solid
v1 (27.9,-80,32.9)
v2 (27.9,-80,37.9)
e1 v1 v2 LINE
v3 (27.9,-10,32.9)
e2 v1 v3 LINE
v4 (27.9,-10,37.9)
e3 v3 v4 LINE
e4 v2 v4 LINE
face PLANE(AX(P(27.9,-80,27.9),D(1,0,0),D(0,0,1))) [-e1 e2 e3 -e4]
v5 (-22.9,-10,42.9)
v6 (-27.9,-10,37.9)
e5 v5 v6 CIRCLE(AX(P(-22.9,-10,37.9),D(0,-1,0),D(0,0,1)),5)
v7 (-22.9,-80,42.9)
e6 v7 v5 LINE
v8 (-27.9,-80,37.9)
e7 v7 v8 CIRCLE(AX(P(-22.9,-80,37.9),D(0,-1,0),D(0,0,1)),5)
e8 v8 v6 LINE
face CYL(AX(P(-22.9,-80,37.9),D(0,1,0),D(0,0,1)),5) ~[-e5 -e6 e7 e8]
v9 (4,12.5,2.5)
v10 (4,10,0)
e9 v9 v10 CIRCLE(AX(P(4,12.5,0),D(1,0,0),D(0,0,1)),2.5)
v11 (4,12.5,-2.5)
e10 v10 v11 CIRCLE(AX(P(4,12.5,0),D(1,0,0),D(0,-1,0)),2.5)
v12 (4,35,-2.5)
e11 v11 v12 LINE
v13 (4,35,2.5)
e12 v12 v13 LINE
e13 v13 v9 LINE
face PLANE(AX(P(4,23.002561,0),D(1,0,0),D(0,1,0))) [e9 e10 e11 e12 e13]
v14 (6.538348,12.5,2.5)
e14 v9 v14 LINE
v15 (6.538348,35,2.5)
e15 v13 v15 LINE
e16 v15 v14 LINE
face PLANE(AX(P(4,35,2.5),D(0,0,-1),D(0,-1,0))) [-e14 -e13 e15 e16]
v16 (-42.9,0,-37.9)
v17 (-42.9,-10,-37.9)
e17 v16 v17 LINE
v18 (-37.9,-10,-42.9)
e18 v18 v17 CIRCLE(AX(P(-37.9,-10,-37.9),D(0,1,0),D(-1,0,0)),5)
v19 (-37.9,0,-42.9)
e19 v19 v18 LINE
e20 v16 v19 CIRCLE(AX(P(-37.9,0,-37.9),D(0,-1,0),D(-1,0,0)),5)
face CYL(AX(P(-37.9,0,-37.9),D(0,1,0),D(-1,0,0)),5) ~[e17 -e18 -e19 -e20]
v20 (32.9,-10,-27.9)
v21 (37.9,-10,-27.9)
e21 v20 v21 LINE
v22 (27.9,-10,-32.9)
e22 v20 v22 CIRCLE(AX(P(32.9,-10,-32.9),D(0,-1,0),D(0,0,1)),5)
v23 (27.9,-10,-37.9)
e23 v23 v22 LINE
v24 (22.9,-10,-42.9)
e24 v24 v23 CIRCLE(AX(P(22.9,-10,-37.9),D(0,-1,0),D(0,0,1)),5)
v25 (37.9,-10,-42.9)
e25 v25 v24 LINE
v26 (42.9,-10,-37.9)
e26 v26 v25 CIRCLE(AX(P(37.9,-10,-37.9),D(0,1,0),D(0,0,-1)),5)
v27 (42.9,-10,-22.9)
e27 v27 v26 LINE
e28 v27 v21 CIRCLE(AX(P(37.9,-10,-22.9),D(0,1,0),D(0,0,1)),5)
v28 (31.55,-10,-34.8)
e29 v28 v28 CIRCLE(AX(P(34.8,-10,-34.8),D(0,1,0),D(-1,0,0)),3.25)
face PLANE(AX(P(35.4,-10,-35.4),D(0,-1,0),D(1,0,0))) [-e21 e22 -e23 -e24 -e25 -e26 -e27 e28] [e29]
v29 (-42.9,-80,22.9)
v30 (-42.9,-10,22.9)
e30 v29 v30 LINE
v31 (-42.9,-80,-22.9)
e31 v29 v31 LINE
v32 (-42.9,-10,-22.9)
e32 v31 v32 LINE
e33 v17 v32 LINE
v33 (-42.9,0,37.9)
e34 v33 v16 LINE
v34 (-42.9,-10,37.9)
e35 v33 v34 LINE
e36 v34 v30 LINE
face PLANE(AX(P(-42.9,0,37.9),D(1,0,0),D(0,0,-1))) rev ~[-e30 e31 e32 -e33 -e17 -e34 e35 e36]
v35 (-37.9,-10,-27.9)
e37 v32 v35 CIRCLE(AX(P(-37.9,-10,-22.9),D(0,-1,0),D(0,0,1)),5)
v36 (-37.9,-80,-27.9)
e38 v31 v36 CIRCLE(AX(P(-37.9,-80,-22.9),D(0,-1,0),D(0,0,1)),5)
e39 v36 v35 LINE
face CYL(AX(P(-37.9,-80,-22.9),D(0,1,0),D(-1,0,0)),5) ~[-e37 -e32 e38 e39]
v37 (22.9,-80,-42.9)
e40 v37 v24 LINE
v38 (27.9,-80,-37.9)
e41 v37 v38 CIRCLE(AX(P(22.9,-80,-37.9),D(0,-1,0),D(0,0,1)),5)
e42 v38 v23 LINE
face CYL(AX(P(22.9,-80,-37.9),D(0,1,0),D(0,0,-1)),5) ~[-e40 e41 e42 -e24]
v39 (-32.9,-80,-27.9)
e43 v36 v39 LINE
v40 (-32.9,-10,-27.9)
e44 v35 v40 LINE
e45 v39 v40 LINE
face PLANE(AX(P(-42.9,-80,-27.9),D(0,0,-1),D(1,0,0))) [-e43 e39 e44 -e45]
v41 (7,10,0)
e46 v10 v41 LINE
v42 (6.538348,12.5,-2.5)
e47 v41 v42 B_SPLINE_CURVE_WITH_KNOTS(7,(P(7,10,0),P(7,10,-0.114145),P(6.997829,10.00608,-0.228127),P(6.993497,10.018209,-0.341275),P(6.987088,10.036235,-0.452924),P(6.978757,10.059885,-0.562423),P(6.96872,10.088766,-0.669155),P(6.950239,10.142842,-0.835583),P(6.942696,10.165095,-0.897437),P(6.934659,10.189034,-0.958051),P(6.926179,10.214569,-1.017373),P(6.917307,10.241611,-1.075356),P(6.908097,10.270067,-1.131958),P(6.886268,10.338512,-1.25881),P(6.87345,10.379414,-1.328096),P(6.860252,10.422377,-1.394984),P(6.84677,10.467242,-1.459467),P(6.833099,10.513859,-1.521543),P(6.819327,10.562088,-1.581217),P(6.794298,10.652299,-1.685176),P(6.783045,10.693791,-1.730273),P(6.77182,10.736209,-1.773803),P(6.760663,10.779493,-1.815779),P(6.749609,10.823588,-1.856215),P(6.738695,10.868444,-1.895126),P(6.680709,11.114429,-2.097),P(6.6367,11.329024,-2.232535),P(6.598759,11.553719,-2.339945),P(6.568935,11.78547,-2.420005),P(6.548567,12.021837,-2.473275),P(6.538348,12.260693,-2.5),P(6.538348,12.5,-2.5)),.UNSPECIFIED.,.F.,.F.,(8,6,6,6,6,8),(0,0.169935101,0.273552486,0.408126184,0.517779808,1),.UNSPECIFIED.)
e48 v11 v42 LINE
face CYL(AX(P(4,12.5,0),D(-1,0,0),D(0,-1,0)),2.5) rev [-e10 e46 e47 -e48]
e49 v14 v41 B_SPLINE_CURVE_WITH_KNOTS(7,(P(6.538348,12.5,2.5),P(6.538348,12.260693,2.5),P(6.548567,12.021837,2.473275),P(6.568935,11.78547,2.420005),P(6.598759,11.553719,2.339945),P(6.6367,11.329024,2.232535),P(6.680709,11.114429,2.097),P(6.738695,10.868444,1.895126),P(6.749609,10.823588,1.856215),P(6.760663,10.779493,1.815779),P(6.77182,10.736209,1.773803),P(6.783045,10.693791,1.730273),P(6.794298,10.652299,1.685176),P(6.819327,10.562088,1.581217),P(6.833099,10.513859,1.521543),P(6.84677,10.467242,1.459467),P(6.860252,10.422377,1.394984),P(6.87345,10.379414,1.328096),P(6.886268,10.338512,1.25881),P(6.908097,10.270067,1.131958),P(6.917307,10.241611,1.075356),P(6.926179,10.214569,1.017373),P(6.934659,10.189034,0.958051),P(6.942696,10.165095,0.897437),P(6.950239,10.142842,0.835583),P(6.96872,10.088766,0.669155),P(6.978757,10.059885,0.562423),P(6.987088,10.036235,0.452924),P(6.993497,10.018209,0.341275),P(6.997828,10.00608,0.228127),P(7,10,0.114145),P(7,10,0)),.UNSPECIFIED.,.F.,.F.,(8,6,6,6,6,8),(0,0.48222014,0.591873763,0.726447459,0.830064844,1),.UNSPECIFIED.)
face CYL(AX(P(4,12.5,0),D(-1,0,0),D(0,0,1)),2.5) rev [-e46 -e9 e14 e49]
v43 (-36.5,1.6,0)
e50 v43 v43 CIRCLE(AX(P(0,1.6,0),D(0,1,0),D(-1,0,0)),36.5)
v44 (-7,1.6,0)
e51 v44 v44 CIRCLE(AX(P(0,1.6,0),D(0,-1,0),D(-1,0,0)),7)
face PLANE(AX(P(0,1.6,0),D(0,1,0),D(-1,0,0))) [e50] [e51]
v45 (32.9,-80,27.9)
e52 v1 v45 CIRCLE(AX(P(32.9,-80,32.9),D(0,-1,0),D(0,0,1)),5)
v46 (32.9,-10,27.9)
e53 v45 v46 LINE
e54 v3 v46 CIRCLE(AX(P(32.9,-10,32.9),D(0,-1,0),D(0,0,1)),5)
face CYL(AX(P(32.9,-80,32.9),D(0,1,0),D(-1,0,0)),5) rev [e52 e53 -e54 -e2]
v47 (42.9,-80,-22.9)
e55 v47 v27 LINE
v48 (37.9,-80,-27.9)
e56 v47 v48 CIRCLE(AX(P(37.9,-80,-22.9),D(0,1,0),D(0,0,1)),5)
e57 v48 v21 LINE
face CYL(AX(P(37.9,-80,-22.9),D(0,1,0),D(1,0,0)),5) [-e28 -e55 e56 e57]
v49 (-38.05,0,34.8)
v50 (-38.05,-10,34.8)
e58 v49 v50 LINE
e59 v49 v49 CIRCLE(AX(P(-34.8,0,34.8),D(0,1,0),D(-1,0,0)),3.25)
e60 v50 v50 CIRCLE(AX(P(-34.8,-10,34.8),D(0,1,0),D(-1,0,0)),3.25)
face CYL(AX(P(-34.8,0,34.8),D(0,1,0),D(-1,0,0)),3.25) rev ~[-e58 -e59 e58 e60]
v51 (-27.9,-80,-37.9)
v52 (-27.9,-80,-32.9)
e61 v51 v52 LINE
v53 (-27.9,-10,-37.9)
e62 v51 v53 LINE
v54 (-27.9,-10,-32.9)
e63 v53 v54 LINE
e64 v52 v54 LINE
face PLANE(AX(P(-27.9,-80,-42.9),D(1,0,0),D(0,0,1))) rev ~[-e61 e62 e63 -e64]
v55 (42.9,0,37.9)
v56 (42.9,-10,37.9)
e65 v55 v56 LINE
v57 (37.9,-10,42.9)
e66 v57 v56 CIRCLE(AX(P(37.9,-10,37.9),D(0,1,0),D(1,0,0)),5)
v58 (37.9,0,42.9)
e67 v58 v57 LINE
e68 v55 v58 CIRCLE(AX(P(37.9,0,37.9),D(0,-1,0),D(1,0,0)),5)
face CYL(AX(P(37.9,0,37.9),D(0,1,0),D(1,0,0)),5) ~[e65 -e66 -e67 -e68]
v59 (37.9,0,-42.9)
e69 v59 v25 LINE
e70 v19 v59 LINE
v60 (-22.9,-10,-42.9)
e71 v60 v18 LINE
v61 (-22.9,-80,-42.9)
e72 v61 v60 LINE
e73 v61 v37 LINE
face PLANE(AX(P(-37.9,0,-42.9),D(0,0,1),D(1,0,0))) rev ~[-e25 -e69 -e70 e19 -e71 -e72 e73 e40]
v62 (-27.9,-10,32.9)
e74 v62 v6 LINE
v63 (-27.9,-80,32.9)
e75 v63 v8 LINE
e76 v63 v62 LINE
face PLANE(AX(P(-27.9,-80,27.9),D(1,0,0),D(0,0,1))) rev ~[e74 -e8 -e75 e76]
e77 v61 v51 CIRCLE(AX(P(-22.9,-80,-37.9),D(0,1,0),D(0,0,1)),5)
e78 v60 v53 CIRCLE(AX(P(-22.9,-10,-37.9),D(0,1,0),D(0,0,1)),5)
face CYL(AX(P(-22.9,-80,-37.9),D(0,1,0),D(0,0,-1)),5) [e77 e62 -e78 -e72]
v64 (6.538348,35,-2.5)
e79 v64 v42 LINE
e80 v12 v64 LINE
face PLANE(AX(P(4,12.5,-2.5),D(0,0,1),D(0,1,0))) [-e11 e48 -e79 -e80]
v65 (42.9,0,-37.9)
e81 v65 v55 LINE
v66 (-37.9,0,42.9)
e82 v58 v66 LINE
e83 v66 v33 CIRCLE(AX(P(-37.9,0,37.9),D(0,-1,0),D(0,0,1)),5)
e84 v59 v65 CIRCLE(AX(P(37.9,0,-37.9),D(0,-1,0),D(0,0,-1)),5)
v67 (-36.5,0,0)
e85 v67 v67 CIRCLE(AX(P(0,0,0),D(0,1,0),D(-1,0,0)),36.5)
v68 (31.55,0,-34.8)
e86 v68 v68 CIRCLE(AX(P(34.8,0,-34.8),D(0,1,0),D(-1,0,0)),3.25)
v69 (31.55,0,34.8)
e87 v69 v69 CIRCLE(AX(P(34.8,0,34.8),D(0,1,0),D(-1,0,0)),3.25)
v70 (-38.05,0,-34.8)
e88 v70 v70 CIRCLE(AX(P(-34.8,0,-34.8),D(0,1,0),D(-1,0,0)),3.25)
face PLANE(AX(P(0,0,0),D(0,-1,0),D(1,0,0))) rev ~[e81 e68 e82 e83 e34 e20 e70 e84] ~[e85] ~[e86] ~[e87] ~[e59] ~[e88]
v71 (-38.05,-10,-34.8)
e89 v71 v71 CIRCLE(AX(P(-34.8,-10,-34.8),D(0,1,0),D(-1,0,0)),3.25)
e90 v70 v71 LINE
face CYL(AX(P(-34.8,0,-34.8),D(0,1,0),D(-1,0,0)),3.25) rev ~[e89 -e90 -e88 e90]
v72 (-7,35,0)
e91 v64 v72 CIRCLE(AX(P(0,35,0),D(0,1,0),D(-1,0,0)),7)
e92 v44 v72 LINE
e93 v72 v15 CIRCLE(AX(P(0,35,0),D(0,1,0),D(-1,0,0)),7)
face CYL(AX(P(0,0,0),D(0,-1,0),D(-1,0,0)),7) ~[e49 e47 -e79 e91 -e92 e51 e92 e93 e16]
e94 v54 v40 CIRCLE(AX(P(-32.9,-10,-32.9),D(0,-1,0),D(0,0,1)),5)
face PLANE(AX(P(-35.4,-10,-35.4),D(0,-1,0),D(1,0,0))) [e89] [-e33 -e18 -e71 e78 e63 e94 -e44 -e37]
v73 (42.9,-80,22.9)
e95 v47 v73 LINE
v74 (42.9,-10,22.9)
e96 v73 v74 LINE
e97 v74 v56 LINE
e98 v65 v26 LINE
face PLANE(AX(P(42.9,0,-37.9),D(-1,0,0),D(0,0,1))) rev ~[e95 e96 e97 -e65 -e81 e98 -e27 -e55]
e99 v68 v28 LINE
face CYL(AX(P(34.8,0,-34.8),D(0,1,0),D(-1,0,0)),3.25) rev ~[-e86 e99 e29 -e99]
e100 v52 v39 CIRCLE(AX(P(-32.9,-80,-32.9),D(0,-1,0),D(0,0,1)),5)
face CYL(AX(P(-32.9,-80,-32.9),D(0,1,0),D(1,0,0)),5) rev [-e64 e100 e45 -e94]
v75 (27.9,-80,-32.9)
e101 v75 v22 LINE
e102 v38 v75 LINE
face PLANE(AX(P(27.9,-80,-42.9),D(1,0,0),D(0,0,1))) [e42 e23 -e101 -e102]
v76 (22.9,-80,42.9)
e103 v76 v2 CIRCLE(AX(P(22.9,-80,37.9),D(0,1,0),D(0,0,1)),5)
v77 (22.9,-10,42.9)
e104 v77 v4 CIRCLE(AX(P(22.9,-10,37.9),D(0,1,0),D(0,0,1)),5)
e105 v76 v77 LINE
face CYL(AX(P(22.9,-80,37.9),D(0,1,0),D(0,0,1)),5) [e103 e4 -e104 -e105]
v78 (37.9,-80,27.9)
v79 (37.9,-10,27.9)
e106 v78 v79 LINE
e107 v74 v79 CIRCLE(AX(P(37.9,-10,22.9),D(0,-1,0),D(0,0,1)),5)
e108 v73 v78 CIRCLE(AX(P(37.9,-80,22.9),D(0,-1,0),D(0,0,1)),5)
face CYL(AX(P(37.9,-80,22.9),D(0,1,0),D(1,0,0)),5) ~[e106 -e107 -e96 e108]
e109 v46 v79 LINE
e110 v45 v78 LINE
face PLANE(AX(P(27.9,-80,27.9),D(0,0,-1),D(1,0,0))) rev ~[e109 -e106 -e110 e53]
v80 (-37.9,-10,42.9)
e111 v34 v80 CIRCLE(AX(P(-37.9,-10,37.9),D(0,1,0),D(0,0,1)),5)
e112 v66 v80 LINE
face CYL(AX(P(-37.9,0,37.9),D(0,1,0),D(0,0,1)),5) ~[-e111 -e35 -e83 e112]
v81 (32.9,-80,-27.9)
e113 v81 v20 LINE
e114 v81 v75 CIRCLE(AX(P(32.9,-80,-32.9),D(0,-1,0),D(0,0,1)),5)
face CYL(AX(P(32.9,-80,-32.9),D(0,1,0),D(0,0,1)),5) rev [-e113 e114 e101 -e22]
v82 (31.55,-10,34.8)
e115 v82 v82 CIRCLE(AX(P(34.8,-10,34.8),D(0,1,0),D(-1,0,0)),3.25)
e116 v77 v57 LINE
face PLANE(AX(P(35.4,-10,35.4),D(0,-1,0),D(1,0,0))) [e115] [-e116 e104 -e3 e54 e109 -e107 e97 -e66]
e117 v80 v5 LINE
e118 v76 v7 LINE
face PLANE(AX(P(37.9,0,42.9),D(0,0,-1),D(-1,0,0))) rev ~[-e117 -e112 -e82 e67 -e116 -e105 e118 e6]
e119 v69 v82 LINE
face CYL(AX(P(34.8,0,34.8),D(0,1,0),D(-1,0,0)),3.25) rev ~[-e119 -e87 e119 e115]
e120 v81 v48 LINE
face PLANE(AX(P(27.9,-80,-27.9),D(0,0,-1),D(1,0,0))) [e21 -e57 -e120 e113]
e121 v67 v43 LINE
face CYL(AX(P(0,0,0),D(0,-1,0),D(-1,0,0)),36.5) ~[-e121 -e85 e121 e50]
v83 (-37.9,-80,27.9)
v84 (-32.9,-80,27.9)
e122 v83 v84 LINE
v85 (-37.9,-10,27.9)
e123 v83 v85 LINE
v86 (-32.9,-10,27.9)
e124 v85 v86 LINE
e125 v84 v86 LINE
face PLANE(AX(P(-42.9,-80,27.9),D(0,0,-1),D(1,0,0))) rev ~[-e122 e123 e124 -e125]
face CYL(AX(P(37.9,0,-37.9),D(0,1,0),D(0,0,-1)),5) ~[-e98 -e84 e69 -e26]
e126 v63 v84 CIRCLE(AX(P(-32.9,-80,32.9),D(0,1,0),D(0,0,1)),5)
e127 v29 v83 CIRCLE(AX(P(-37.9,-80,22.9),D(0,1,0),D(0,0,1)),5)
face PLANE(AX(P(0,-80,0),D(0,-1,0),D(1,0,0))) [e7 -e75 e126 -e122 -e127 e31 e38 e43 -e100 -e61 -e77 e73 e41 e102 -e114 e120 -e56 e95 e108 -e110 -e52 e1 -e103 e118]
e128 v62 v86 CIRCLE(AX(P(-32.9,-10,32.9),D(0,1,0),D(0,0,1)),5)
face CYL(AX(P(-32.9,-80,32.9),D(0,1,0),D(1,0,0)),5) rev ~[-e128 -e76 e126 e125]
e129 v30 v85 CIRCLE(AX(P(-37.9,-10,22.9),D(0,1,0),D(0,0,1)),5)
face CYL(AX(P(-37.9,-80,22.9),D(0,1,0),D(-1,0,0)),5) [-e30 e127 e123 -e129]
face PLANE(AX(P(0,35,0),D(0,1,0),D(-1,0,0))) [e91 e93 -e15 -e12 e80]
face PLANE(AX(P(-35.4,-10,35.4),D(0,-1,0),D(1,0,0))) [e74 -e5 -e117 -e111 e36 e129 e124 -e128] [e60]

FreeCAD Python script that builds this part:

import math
import FreeCAD as App
import Part
import Sketcher

V = App.Vector


def edges_at(feature, points):
    """Names of the edges that pass closest to the given points."""
    edges = feature.Shape.Edges
    near = lambda p: min(range(len(edges)), key=lambda i: edges[i].distToShape(Part.Vertex(*p))[0])
    return sorted({f"Edge{near(p) + 1}" for p in points})

doc = App.newDocument("Part")
body = doc.addObject("PartDesign::Body", "Body")

# Sketch on XZ plane
sketch1 = body.newObject("Sketcher::SketchObject", "Sketch")
sketch1.AttachmentSupport = (doc.getObject("XZ_Plane"), [""])
sketch1.MapMode = "FlatFace"
sketch1.addGeometry([
    Part.LineSegment(V(38, 43, 0), V(-38, 43, 0)),  # 0
    Part.ArcOfCircle(Part.Circle(V(-38, 38, 0), V(0, 0, 1), 5), math.radians(90), math.radians(180)),  # 1
    Part.LineSegment(V(-43, 38, 0), V(-43, -38, 0)),  # 2
    Part.ArcOfCircle(Part.Circle(V(-38, -38, 0), V(0, 0, 1), 5), math.radians(180), math.radians(270)),  # 3
    Part.LineSegment(V(-38, -43, 0), V(38, -43, 0)),  # 4
    Part.ArcOfCircle(Part.Circle(V(38, -38, 0), V(0, 0, 1), 5), math.radians(-90), math.radians(0)),  # 5
    Part.LineSegment(V(43, -38, 0), V(43, 38, 0)),  # 6
    Part.ArcOfCircle(Part.Circle(V(38, 38, 0), V(0, 0, 1), 5), math.radians(0), math.radians(90)),  # 7
], False)
sketch1.addConstraint([
    Sketcher.Constraint("Tangent", 0, 2, 1, 1),
    Sketcher.Constraint("Tangent", 1, 2, 2, 1),
    Sketcher.Constraint("Tangent", 2, 2, 3, 1),
    Sketcher.Constraint("Tangent", 3, 2, 4, 1),
    Sketcher.Constraint("Tangent", 4, 2, 5, 1),
    Sketcher.Constraint("Tangent", 5, 2, 6, 1),
    Sketcher.Constraint("Tangent", 6, 2, 7, 1),
    Sketcher.Constraint("Tangent", 7, 2, 0, 1),
    Sketcher.Constraint("Horizontal", 0),
    Sketcher.Constraint("Vertical", 2),
    Sketcher.Constraint("Horizontal", 4),
    Sketcher.Constraint("Vertical", 6),
    Sketcher.Constraint("Equal", 1, 3),
    Sketcher.Constraint("Equal", 3, 5),
    Sketcher.Constraint("Equal", 5, 7),
    Sketcher.Constraint("Symmetric", 1, 3, 5, 3, -1, 1),
    Sketcher.Constraint("Equal", 4, 2),
    Sketcher.Constraint("Radius", 1, 5.0),
    Sketcher.Constraint("DistanceX", 0, 2, 0, 1, 75.8),
])
pad1 = body.newObject("PartDesign::Pad", "Pad")
pad1.Profile = sketch1
pad1.Length = 80

# Sketch on XZ plane
sketch2 = body.newObject("Sketcher::SketchObject", "Sketch001")
sketch2.AttachmentSupport = (doc.getObject("XZ_Plane"), [""])
sketch2.MapMode = "FlatFace"
sketch2.AttachmentOffset = App.Placement(V(0, 0, 80), App.Rotation())
sketch2.addGeometry([
    Part.LineSegment(V(28, 43, 0), V(28, 28, 0)),  # 0
    Part.LineSegment(V(28, 28, 0), V(43, 28, 0)),  # 1
    Part.LineSegment(V(43, 28, 0), V(43, 43, 0)),  # 2
    Part.LineSegment(V(43, 43, 0), V(28, 43, 0)),  # 3
    Part.LineSegment(V(-43, 43, 0), V(-43, 28, 0)),  # 4
    Part.LineSegment(V(-43, 28, 0), V(-28, 28, 0)),  # 5
    Part.LineSegment(V(-28, 28, 0), V(-28, 43, 0)),  # 6
    Part.LineSegment(V(-28, 43, 0), V(-43, 43, 0)),  # 7
    Part.LineSegment(V(-43, -28, 0), V(-43, -43, 0)),  # 8
    Part.LineSegment(V(-43, -43, 0), V(-28, -43, 0)),  # 9
    Part.LineSegment(V(-28, -43, 0), V(-28, -28, 0)),  # 10
    Part.LineSegment(V(-28, -28, 0), V(-43, -28, 0)),  # 11
    Part.LineSegment(V(28, -28, 0), V(28, -43, 0)),  # 12
    Part.LineSegment(V(28, -43, 0), V(43, -43, 0)),  # 13
    Part.LineSegment(V(43, -43, 0), V(43, -28, 0)),  # 14
    Part.LineSegment(V(43, -28, 0), V(28, -28, 0)),  # 15
], False)
sketch2.addConstraint([
    Sketcher.Constraint("Coincident", 0, 2, 1, 1),
    Sketcher.Constraint("Coincident", 1, 2, 2, 1),
    Sketcher.Constraint("Coincident", 2, 2, 3, 1),
    Sketcher.Constraint("Coincident", 3, 2, 0, 1),
    Sketcher.Constraint("Coincident", 4, 2, 5, 1),
    Sketcher.Constraint("Coincident", 5, 2, 6, 1),
    Sketcher.Constraint("Coincident", 6, 2, 7, 1),
    Sketcher.Constraint("Coincident", 7, 2, 4, 1),
    Sketcher.Constraint("Coincident", 8, 2, 9, 1),
    Sketcher.Constraint("Coincident", 9, 2, 10, 1),
    Sketcher.Constraint("Coincident", 10, 2, 11, 1),
    Sketcher.Constraint("Coincident", 11, 2, 8, 1),
    Sketcher.Constraint("Coincident", 12, 2, 13, 1),
    Sketcher.Constraint("Coincident", 13, 2, 14, 1),
    Sketcher.Constraint("Coincident", 14, 2, 15, 1),
    Sketcher.Constraint("Coincident", 15, 2, 12, 1),
    Sketcher.Constraint("Vertical", 0),
    Sketcher.Constraint("Horizontal", 1),
    Sketcher.Constraint("Vertical", 2),
    Sketcher.Constraint("Horizontal", 3),
    Sketcher.Constraint("Vertical", 4),
    Sketcher.Constraint("Horizontal", 5),
    Sketcher.Constraint("Vertical", 6),
    Sketcher.Constraint("Horizontal", 7),
    Sketcher.Constraint("Vertical", 8),
    Sketcher.Constraint("Horizontal", 9),
    Sketcher.Constraint("Vertical", 10),
    Sketcher.Constraint("Horizontal", 11),
    Sketcher.Constraint("Vertical", 12),
    Sketcher.Constraint("Horizontal", 13),
    Sketcher.Constraint("Vertical", 14),
    Sketcher.Constraint("Horizontal", 15),
    Sketcher.Constraint("Symmetric", 2, 2, 8, 2, -1, 1),
    Sketcher.Constraint("Symmetric", 0, 2, 10, 2, -1, 1),
    Sketcher.Constraint("Symmetric", 6, 2, 12, 2, -1, 1),
    Sketcher.Constraint("Symmetric", 4, 2, 14, 2, -1, 1),
    Sketcher.Constraint("Symmetric", 1, 2, 4, 2, -2),
    Sketcher.Constraint("Symmetric", 3, 2, 6, 2, -2),
    Sketcher.Constraint("Equal", 15, 0),
    Sketcher.Constraint("DistanceX", 1, 1, 1, 2, 15.0),
    Sketcher.Constraint("DistanceX", -1, 1, 0, 2, 27.9),
    Sketcher.Constraint("DistanceY", -1, 1, 0, 2, 27.9),
])
pocket1 = body.newObject("PartDesign::Pocket", "Pocket")
pocket1.Profile = sketch2
pocket1.Length = 70

# Sketch on XZ plane
sketch3 = body.newObject("Sketcher::SketchObject", "Sketch002")
sketch3.AttachmentSupport = (doc.getObject("XZ_Plane"), [""])
sketch3.MapMode = "FlatFace"
sketch3.addGeometry([
    Part.Circle(V(-34.8, 34.8, 0), V(0, 0, 1), 3.2),
    Part.Circle(V(34.8, 34.8, 0), V(0, 0, 1), 3.2),
    Part.Circle(V(-34.8, -34.8, 0), V(0, 0, 1), 3.2),
    Part.Circle(V(34.8, -34.8, 0), V(0, 0, 1), 3.2),
], False)
sketch3.addConstraint([
    Sketcher.Constraint("Equal", 0, 1),
    Sketcher.Constraint("Equal", 1, 2),
    Sketcher.Constraint("Equal", 2, 3),
    Sketcher.Constraint("Symmetric", 1, 3, 2, 3, -1, 1),
    Sketcher.Constraint("Symmetric", 0, 3, 3, 3, -1, 1),
    Sketcher.Constraint("Symmetric", 0, 3, 1, 3, -2),
    Sketcher.Constraint("Diameter", 0, 6.5),
    Sketcher.Constraint("DistanceX", 0, 3, -1, 1, 34.8),
    Sketcher.Constraint("DistanceY", -1, 1, 0, 3, 34.8),
])
pocket2 = body.newObject("PartDesign::Pocket", "Pocket001")
pocket2.Profile = sketch3
pocket2.Type = "ThroughAll"
pocket2.Reversed = True
doc.recompute()

fillet = body.newObject("PartDesign::Fillet", "Fillet")
fillet.Base = (pocket2, edges_at(pocket2, [
    (-42.9, -45, 27.9),
    (-42.9, -45, -27.9),
    (-27.9, -45, -27.9),
    (-27.9, -45, -42.9),
    (27.9, -45, -42.9),
    (-27.9, -45, 42.9),
    (27.9, -45, -27.9),
    (42.9, -45, -27.9),
    (42.9, -45, 27.9),
    (27.9, -45, 42.9),
    (27.9, -45, 27.9),
    (-27.9, -45, 27.9),
]))
fillet.Radius = 5

# Sketch on XZ plane
sketch4 = body.newObject("Sketcher::SketchObject", "Sketch003")
sketch4.AttachmentSupport = (doc.getObject("XZ_Plane"), [""])
sketch4.MapMode = "FlatFace"
sketch4.addGeometry(Part.Circle(V(0, 0, 0), V(0, 0, 1), 36), False)
sketch4.addConstraint([
    Sketcher.Constraint("Coincident", 0, 3, -1, 1),
    Sketcher.Constraint("Diameter", 0, 73.0),
])
pad2 = body.newObject("PartDesign::Pad", "Pad001")
pad2.Profile = sketch4
pad2.Length = 1.6
pad2.Reversed = True

# Sketch on XZ plane
sketch5 = body.newObject("Sketcher::SketchObject", "Sketch004")
sketch5.AttachmentSupport = (doc.getObject("XZ_Plane"), [""])
sketch5.MapMode = "FlatFace"
sketch5.addGeometry(Part.Circle(V(0, 0, 0), V(0, 0, 1), 7), False)
sketch5.addConstraint([
    Sketcher.Constraint("Coincident", 0, 3, -1, 1),
    Sketcher.Constraint("Diameter", 0, 14.0),
])
pad3 = body.newObject("PartDesign::Pad", "Pad002")
pad3.Profile = sketch5
pad3.Length = 35
pad3.Reversed = True

# Sketch on YZ plane
sketch6 = body.newObject("Sketcher::SketchObject", "Sketch005")
sketch6.AttachmentSupport = (doc.getObject("YZ_Plane"), [""])
sketch6.MapMode = "FlatFace"
sketch6.AttachmentOffset = App.Placement(V(0, 0, 4), App.Rotation())
sketch6.addGeometry([
    Part.LineSegment(V(35, 2.5, 0), V(12.5, 2.5, 0)),  # 0
    Part.ArcOfCircle(Part.Circle(V(12.5, 0, 0), V(0, 0, 1), 2.5), math.radians(90), math.radians(180)),  # 1
    Part.ArcOfCircle(Part.Circle(V(12.5, 0, 0), V(0, 0, 1), 2.5), math.radians(180), math.radians(270)),  # 2
    Part.LineSegment(V(12.5, -2.5, 0), V(35, -2.5, 0)),  # 3
    Part.LineSegment(V(35, -2.5, 0), V(35, 2.5, 0)),  # 4
], False)
sketch6.addConstraint([
    Sketcher.Constraint("Tangent", 0, 2, 1, 1),
    Sketcher.Constraint("Tangent", 1, 2, 2, 1),
    Sketcher.Constraint("Tangent", 2, 2, 3, 1),
    Sketcher.Constraint("Coincident", 3, 2, 4, 1),
    Sketcher.Constraint("Coincident", 4, 2, 0, 1),
    Sketcher.Constraint("Horizontal", 0),
    Sketcher.Constraint("Horizontal", 3),
    Sketcher.Constraint("Vertical", 4),
    Sketcher.Constraint("Equal", 1, 2),
    Sketcher.Constraint("PointOnObject", 1, 3, -1),
    Sketcher.Constraint("PointOnObject", 1, 2, -1),
    Sketcher.Constraint("Radius", 1, 2.5),
    Sketcher.Constraint("DistanceX", 0, 2, 0, 1, 22.5),
    Sketcher.Constraint("DistanceX", -1, 1, 1, 2, 10.0),
])
pocket3 = body.newObject("PartDesign::Pocket", "Pocket002")
pocket3.Profile = sketch6
pocket3.Length = 5
pocket3.Reversed = True

doc.recompute()
